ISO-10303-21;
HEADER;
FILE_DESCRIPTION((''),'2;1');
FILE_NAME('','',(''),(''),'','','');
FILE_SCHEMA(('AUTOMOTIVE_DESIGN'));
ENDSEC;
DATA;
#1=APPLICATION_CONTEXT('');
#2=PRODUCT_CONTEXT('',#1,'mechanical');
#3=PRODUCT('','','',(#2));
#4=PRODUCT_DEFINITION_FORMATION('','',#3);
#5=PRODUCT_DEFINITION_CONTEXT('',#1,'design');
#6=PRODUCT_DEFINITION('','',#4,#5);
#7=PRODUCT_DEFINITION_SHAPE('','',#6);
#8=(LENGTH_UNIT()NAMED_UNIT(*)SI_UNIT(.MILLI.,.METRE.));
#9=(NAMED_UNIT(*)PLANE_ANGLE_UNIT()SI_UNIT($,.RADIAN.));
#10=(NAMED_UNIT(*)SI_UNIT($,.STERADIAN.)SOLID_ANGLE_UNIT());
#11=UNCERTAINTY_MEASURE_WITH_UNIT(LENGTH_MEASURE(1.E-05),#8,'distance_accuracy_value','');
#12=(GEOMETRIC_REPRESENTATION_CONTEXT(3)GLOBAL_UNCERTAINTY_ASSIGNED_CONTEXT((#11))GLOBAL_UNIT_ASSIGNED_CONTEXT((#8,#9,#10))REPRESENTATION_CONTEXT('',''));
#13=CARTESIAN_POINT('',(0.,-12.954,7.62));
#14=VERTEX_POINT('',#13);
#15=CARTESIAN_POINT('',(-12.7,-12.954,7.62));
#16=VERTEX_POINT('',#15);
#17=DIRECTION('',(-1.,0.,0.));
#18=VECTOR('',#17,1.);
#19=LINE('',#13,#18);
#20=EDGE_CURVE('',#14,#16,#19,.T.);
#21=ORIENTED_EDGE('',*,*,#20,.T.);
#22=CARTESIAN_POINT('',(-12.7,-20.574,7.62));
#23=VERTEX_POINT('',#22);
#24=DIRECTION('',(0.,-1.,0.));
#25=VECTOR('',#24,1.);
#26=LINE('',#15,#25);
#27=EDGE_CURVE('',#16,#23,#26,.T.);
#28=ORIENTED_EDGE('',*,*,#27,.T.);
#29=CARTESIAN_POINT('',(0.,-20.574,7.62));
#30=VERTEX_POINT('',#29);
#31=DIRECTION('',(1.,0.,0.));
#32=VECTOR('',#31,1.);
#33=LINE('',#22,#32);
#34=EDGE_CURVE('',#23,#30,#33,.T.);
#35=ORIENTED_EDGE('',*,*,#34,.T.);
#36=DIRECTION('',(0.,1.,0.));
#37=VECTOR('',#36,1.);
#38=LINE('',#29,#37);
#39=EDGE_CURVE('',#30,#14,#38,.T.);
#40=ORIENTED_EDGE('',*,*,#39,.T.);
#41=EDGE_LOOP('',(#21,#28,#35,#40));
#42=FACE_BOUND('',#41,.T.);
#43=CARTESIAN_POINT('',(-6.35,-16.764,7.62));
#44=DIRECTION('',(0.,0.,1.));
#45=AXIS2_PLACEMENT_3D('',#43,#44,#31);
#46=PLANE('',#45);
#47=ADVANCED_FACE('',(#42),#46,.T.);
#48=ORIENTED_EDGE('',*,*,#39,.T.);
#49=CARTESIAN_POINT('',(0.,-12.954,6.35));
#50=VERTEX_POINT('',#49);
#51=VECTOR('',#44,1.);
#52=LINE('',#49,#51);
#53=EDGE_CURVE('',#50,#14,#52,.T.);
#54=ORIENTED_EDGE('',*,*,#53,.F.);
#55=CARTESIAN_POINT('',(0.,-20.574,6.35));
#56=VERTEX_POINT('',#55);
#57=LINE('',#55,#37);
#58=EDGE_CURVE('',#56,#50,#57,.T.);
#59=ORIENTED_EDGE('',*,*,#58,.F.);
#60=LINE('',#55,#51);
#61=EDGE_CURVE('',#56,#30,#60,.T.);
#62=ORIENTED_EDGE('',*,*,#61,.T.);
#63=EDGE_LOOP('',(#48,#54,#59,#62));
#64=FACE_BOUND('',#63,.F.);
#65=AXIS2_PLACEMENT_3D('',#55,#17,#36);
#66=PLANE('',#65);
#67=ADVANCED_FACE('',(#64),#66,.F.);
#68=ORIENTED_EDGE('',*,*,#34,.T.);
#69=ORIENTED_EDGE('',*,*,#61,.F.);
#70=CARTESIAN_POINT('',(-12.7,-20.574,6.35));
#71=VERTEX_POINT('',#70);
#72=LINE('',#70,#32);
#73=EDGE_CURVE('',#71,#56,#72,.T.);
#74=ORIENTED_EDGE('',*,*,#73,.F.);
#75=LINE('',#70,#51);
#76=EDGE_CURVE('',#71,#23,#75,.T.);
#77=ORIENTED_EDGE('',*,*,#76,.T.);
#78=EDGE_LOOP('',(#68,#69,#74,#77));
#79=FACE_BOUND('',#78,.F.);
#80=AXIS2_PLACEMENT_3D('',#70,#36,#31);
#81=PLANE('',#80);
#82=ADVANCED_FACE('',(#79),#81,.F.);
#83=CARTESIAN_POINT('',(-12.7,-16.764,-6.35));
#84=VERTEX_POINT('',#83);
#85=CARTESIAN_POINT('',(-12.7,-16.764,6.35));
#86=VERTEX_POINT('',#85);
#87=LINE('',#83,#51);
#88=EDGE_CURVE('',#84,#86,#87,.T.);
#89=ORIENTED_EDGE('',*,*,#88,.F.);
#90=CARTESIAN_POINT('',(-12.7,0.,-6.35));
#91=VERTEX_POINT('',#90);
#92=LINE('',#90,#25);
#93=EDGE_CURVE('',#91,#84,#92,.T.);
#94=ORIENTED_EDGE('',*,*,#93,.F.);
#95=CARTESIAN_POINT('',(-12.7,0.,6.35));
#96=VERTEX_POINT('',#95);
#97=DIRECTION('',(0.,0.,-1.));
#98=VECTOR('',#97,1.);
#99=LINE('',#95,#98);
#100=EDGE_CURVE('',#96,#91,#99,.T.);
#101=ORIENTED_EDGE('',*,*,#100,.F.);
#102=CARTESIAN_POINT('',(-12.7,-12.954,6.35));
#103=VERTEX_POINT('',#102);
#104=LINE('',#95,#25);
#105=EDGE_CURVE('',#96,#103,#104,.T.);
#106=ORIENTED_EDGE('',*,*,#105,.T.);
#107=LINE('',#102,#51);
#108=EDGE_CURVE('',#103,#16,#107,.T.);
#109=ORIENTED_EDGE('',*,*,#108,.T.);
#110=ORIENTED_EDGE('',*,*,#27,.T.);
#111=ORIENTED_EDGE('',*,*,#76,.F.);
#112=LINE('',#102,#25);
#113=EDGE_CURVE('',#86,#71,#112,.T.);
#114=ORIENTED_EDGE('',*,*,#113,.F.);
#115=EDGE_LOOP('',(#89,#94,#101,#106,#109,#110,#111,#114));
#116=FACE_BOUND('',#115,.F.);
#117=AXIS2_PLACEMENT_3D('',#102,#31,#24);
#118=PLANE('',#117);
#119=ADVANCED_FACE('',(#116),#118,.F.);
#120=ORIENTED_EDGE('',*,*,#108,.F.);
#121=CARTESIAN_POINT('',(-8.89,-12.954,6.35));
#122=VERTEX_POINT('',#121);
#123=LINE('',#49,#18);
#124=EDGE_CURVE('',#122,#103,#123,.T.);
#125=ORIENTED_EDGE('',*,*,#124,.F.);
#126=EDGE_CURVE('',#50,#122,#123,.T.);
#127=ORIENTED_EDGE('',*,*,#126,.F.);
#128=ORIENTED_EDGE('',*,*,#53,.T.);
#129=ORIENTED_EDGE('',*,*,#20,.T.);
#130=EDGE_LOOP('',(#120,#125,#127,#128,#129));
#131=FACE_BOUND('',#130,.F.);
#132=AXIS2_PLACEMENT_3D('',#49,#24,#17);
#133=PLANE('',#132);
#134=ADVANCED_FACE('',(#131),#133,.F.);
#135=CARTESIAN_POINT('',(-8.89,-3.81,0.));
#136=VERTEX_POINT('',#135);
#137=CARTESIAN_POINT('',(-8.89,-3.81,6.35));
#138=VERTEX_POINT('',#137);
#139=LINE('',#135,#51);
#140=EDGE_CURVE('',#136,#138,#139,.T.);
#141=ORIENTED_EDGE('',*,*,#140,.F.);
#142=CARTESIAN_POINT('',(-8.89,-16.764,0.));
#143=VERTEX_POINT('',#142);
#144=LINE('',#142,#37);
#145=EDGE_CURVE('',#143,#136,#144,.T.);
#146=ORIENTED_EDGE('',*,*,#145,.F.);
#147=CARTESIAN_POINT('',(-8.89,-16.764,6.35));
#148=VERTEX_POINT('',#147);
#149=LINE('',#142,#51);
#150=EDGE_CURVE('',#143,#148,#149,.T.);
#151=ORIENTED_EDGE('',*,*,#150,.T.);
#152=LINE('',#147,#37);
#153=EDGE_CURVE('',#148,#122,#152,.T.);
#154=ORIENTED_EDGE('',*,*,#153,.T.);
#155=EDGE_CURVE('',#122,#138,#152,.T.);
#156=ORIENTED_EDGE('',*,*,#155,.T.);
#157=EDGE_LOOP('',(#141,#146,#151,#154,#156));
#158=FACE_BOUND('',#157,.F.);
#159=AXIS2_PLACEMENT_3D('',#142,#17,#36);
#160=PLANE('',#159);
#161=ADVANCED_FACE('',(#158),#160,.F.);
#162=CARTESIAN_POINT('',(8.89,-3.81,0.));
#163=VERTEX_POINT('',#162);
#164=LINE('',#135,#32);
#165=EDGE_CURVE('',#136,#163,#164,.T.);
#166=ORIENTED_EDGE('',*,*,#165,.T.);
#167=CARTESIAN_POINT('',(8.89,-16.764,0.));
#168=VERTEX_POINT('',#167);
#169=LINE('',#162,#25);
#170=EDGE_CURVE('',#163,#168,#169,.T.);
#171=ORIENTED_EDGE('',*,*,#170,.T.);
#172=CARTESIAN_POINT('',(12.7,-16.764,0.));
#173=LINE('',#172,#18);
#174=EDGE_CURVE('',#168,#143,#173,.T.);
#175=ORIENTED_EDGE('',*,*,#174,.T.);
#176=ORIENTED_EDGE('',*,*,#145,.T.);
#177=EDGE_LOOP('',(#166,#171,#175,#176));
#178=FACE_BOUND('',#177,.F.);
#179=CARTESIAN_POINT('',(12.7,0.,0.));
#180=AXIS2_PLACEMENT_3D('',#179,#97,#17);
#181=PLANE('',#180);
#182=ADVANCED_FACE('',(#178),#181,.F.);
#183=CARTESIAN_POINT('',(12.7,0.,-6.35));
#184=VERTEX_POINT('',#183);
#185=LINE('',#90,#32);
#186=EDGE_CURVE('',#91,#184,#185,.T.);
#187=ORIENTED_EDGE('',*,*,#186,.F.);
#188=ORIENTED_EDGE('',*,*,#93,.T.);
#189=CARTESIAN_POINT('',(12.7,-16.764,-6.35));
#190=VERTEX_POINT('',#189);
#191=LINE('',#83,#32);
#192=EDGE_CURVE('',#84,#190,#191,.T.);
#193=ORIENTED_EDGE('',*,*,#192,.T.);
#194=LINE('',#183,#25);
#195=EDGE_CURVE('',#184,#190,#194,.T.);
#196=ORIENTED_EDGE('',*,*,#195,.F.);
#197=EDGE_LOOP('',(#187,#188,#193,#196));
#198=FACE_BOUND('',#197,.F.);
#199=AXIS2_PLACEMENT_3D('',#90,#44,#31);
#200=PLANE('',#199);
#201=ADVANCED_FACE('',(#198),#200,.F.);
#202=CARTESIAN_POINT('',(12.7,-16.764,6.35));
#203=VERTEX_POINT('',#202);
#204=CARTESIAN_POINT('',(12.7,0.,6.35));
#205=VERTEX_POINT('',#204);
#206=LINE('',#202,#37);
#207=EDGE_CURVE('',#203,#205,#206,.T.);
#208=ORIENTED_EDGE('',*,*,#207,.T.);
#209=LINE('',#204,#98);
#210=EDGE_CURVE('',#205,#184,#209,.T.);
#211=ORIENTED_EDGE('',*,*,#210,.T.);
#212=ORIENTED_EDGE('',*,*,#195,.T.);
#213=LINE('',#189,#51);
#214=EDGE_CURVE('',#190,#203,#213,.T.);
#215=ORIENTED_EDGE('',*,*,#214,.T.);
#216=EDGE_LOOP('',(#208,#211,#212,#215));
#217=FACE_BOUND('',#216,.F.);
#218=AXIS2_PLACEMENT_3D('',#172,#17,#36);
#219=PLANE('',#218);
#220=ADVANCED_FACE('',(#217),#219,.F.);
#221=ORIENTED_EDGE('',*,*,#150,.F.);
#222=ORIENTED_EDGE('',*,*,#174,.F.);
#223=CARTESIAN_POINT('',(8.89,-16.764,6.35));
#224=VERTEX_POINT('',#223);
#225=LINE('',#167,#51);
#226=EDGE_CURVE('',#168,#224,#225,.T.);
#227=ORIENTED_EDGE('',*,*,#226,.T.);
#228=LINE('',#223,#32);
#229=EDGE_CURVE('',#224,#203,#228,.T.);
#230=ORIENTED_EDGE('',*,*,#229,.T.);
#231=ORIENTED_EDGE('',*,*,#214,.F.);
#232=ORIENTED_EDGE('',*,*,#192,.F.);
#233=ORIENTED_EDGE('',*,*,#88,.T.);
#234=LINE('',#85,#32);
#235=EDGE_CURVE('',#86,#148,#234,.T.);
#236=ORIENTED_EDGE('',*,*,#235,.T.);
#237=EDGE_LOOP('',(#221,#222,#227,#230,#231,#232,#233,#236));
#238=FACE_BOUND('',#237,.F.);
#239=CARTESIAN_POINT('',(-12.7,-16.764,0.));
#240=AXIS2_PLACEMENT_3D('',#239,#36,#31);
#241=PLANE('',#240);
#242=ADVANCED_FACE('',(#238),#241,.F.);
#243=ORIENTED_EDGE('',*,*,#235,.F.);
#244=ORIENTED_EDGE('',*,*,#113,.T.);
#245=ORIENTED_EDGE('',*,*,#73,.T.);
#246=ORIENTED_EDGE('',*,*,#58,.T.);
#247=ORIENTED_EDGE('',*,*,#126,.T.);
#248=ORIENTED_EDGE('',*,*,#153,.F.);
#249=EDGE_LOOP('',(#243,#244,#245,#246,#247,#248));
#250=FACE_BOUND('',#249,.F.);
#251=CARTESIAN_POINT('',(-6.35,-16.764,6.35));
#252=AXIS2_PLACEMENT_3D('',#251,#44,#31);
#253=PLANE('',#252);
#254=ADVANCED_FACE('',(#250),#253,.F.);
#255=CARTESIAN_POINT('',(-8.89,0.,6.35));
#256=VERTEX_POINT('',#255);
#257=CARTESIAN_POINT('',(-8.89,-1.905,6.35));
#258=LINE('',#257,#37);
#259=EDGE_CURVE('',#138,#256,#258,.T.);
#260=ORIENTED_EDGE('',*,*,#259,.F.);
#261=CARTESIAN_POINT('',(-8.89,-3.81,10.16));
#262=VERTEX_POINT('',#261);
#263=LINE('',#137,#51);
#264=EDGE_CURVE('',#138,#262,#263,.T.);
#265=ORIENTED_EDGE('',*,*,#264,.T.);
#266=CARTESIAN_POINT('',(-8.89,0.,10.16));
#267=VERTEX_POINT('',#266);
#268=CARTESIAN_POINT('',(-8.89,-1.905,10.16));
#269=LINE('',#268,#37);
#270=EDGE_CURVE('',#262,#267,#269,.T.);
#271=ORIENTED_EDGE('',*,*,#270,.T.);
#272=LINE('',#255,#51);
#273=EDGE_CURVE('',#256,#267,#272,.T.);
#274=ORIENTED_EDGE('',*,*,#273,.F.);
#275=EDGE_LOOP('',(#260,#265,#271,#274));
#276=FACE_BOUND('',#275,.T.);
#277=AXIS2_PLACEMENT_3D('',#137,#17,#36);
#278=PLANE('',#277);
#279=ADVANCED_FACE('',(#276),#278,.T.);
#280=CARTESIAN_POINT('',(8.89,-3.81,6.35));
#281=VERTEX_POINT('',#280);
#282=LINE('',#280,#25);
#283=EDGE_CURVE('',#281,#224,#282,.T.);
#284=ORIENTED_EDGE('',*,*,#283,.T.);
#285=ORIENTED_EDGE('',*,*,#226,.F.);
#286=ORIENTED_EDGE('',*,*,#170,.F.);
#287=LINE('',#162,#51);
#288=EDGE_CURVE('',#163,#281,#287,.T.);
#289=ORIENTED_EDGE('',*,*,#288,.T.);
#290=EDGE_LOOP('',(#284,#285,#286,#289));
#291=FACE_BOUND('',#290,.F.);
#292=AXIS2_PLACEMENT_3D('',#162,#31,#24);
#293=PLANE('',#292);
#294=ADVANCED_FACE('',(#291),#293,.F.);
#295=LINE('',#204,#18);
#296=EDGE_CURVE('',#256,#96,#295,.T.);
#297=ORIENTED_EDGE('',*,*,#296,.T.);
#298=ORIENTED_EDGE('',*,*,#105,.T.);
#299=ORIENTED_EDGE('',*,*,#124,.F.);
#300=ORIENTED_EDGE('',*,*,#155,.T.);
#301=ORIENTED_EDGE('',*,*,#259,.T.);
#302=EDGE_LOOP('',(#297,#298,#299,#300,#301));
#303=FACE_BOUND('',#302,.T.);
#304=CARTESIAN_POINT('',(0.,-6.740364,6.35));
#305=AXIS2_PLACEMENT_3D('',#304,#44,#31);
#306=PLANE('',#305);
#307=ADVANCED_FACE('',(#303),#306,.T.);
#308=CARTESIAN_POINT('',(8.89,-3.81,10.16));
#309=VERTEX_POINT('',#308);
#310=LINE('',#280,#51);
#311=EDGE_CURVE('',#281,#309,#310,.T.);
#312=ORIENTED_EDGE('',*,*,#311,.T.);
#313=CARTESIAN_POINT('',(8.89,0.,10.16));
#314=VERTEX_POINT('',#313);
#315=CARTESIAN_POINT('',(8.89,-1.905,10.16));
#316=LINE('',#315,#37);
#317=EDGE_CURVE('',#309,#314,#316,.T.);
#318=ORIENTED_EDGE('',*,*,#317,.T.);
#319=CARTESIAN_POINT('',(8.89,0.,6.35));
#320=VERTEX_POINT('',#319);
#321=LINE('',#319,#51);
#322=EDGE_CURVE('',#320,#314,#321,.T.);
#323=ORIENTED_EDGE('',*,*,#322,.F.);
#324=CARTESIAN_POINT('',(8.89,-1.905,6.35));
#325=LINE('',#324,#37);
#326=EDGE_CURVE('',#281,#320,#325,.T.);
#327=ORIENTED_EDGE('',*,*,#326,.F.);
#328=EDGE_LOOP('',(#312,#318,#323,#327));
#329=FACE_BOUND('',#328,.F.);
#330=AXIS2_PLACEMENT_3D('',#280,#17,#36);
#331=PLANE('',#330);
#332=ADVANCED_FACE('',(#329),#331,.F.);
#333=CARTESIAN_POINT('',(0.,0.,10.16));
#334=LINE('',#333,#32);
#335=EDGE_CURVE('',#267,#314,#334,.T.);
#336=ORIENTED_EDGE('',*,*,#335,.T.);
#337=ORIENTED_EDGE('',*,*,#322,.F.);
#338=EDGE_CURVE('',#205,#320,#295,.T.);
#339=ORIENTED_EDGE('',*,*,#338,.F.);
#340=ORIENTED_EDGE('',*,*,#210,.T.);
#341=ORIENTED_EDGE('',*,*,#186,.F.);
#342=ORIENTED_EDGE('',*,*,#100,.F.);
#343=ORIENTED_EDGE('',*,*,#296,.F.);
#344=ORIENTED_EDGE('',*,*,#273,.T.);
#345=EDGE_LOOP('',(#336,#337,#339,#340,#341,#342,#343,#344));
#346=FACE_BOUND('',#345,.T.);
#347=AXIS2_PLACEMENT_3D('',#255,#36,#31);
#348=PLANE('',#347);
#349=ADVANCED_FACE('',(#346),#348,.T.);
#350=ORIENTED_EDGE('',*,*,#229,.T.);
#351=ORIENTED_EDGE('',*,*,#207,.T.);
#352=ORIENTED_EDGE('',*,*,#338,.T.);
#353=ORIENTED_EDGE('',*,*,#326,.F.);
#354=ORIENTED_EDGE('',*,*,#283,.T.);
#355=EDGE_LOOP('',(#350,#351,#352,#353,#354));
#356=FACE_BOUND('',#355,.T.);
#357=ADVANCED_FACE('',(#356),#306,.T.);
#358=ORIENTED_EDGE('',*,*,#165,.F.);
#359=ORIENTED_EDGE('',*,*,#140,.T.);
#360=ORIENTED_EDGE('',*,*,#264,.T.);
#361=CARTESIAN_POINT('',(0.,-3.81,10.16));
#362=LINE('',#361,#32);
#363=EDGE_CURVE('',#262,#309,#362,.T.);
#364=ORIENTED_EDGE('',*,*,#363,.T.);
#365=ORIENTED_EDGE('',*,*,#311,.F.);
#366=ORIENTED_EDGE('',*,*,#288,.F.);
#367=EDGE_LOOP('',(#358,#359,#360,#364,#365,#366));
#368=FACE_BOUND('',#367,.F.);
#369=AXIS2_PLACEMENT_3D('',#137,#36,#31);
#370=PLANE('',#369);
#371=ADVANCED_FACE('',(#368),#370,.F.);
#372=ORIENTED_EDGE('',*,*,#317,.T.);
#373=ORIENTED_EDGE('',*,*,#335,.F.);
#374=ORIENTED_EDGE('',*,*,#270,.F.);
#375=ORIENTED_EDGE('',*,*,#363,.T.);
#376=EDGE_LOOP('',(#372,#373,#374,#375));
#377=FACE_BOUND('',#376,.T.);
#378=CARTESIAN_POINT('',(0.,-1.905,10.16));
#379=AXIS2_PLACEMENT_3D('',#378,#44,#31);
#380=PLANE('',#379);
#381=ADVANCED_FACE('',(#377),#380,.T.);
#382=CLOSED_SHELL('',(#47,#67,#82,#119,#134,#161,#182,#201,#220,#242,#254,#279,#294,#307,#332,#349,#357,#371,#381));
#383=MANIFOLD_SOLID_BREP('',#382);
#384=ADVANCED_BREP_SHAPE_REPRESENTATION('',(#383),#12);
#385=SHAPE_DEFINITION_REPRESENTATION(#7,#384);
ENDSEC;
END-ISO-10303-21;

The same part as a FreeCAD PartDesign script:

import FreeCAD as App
import Part
import Sketcher

V = App.Vector
Q = App.Units.Quantity


def add_polygon(sketch, points):
    """Adds a closed chain of lines whose ends are joined by coincident constraints."""
    first, n = sketch.GeometryCount, len(points)
    for a, b in zip(points, points[1:] + points[:1]):
        sketch.addGeometry(Part.LineSegment(App.Vector(*a, 0), App.Vector(*b, 0)), False)
    for i in range(n):
        sketch.addConstraint(Sketcher.Constraint("Coincident", first + i, 2, first + (i + 1) % n, 1))

doc = App.newDocument("Part")
body = doc.addObject("PartDesign::Body", "Body")

# Sketch on XZ plane
sketch1 = body.newObject("Sketcher::SketchObject", "Sketch")
sketch1.AttachmentSupport = (doc.getObject("XZ_Plane"), [""])
sketch1.MapMode = "FlatFace"
add_polygon(sketch1, [(-13, -6), (13, -6), (13, 0), (-13, 0)])  # lines 0-3
sketch1.addConstraint([
    Sketcher.Constraint("Horizontal", 0),
    Sketcher.Constraint("Vertical", 1),
    Sketcher.Constraint("Horizontal", 2),
    Sketcher.Constraint("Vertical", 3),
    Sketcher.Constraint("Symmetric", 1, 2, 2, 2, -1, 1),
    Sketcher.Constraint("DistanceX", 0, 1, 0, 2, Q("1 in")),
    Sketcher.Constraint("DistanceY", 1, 1, 1, 2, Q("0.25 in")),
])
pad1 = body.newObject("PartDesign::Pad", "Pad")
pad1.Profile = sketch1
pad1.Length = Q("0.66 in")

# Sketch on XY plane
sketch2 = body.newObject("Sketcher::SketchObject", "Sketch001")
sketch2.AttachmentSupport = (doc.getObject("XY_Plane"), [""])
sketch2.MapMode = "FlatFace"
add_polygon(sketch2, [(-12.7, 0), (-12.7, -16.8), (-8.9, -16.8), (-8.9, -3.8), (8.9, -3.8), (8.9, -16.8), (12.7, -16.8), (12.7, 0)])  # lines 0-7
sketch2.addConstraint([
    Sketcher.Constraint("Vertical", 0),
    Sketcher.Constraint("Horizontal", 1),
    Sketcher.Constraint("Vertical", 2),
    Sketcher.Constraint("Horizontal", 3),
    Sketcher.Constraint("Vertical", 4),
    Sketcher.Constraint("Horizontal", 5),
    Sketcher.Constraint("Vertical", 6),
    Sketcher.Constraint("Horizontal", 7),
    Sketcher.Constraint("Symmetric", 6, 2, 7, 2, -1, 1),
    Sketcher.Constraint("Symmetric", 1, 2, 4, 2, -2),
    Sketcher.Constraint("DistanceX", 7, 2, 7, 1, Q("1 in")),
    Sketcher.Constraint("DistanceX", 3, 1, 3, 2, Q("0.7 in")),
    Sketcher.Constraint("DistanceY", 0, 2, 0, 1, Q("0.66 in")),
    Sketcher.Constraint("DistanceY", 2, 1, 2, 2, Q("0.51 in")),
])
pad2 = body.newObject("PartDesign::Pad", "Pad001")
pad2.Profile = sketch2
pad2.Length = Q("0.25 in")

# Sketch on XY plane
sketch3 = body.newObject("Sketcher::SketchObject", "Sketch002")
sketch3.AttachmentSupport = (doc.getObject("XY_Plane"), [""])
sketch3.MapMode = "FlatFace"
sketch3.AttachmentOffset = App.Placement(V(0, 0, 0.25 * 25.4), App.Rotation())
add_polygon(sketch3, [(-8.9, 0), (-8.9, -3.8), (8.9, -3.8), (8.9, 0)])  # lines 0-3
sketch3.addConstraint([
    Sketcher.Constraint("Vertical", 0),
    Sketcher.Constraint("Horizontal", 1),
    Sketcher.Constraint("Vertical", 2),
    Sketcher.Constraint("Horizontal", 3),
    Sketcher.Constraint("Symmetric", 2, 2, 3, 2, -1, 1),
    Sketcher.Constraint("DistanceX", 1, 1, 1, 2, Q("0.7 in")),
    Sketcher.Constraint("DistanceY", 0, 2, 0, 1, Q("0.15 in")),
])
pad3 = body.newObject("PartDesign::Pad", "Pad002")
pad3.Profile = sketch3
pad3.Length = Q("0.15 in")

# Sketch on XY plane
sketch4 = body.newObject("Sketcher::SketchObject", "Sketch003")
sketch4.AttachmentSupport = (doc.getObject("XY_Plane"), [""])
sketch4.MapMode = "FlatFace"
sketch4.AttachmentOffset = App.Placement(V(0, 0, 0.25 * 25.4), App.Rotation())
add_polygon(sketch4, [(-13, -13), (-13, -21), (0, -21), (0, -13)])  # lines 0-3
sketch4.addConstraint([
    Sketcher.Constraint("Vertical", 0),
    Sketcher.Constraint("Horizontal", 1),
    Sketcher.Constraint("Vertical", 2),
    Sketcher.Constraint("Horizontal", 3),
    Sketcher.Constraint("PointOnObject", 1, 2, -2),
    Sketcher.Constraint("DistanceX", 1, 1, 1, 2, Q("0.5 in")),
    Sketcher.Constraint("DistanceY", 0, 2, 0, 1, Q("0.3 in")),
    Sketcher.Constraint("DistanceY", 0, 2, -1, 1, Q("0.81 in")),
])
pad4 = body.newObject("PartDesign::Pad", "Pad003")
pad4.Profile = sketch4
pad4.Length = Q("0.05 in")

doc.recompute()
